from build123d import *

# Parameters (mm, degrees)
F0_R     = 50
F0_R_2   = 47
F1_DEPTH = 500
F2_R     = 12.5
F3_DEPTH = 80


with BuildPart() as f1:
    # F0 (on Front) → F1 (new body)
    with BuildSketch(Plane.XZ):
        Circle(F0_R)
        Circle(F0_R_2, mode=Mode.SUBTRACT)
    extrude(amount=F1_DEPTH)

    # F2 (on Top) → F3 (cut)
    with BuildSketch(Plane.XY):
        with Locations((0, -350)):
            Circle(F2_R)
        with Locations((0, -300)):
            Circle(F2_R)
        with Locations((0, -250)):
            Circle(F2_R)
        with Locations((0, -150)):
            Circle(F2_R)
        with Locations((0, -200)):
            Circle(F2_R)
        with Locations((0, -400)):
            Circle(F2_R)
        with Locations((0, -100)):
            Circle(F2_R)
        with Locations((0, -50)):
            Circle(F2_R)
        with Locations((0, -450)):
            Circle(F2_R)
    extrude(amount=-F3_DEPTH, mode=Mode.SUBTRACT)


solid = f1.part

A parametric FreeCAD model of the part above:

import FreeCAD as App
import Part
import Sketcher

doc = App.newDocument("Part")
body = doc.addObject("PartDesign::Body", "Body")

# Sketch on XZ plane
sketch1 = body.newObject("Sketcher::SketchObject", "Sketch")
sketch1.AttachmentSupport = (doc.getObject("XZ_Plane"), [""])
sketch1.MapMode = "FlatFace"
sketch1.addGeometry([
    Part.Circle(App.Vector(0, 0, 0), App.Vector(0, 0, 1), 50),
    Part.Circle(App.Vector(0, 0, 0), App.Vector(0, 0, 1), 47),
], False)
sketch1.addConstraint([
    Sketcher.Constraint("Coincident", 0, 3, -1, 1),
    Sketcher.Constraint("Coincident", 1, 3, -1, 1),
    Sketcher.Constraint("Diameter", 0, 100.0),
    Sketcher.Constraint("Diameter", 1, 94.0),
])
pad1 = body.newObject("PartDesign::Pad", "Pad")
pad1.Profile = sketch1
pad1.Length = 500

# Sketch on XY plane
sketch2 = body.newObject("Sketcher::SketchObject", "Sketch001")
sketch2.AttachmentSupport = (doc.getObject("XY_Plane"), [""])
sketch2.MapMode = "FlatFace"
sketch2.addGeometry([
    Part.Circle(App.Vector(0, -350, 0), App.Vector(0, 0, 1), 12.5),  # 0
    Part.Circle(App.Vector(0, -300, 0), App.Vector(0, 0, 1), 12.5),  # 1
    Part.Circle(App.Vector(0, -250, 0), App.Vector(0, 0, 1), 12.5),  # 2
    Part.Circle(App.Vector(0, -150, 0), App.Vector(0, 0, 1), 12.5),  # 3
    Part.Circle(App.Vector(0, -200, 0), App.Vector(0, 0, 1), 12.5),  # 4
    Part.Circle(App.Vector(0, -400, 0), App.Vector(0, 0, 1), 12.5),  # 5
    Part.Circle(App.Vector(0, -100, 0), App.Vector(0, 0, 1), 12.5),  # 6
    Part.Circle(App.Vector(0, -50, 0), App.Vector(0, 0, 1), 12.5),  # 7
    Part.Circle(App.Vector(0, -450, 0), App.Vector(0, 0, 1), 12.5),  # 8
], False)
sketch2.addConstraint([
    Sketcher.Constraint("Equal", 0, 1),
    Sketcher.Constraint("Equal", 1, 2),
    Sketcher.Constraint("Equal", 2, 3),
    Sketcher.Constraint("Equal", 3, 4),
    Sketcher.Constraint("Equal", 4, 5),
    Sketcher.Constraint("Equal", 5, 6),
    Sketcher.Constraint("Equal", 6, 7),
    Sketcher.Constraint("Equal", 7, 8),
    Sketcher.Constraint("PointOnObject", 0, 3, -2),
    Sketcher.Constraint("PointOnObject", 1, 3, -2),
    Sketcher.Constraint("PointOnObject", 2, 3, -2),
    Sketcher.Constraint("PointOnObject", 3, 3, -2),
    Sketcher.Constraint("PointOnObject", 4, 3, -2),
    Sketcher.Constraint("PointOnObject", 5, 3, -2),
    Sketcher.Constraint("PointOnObject", 6, 3, -2),
    Sketcher.Constraint("PointOnObject", 7, 3, -2),
    Sketcher.Constraint("PointOnObject", 8, 3, -2),
    Sketcher.Constraint("Diameter", 0, 25.0),
    Sketcher.Constraint("DistanceY", 0, 3, -1, 1, 350.0),
    Sketcher.Constraint("DistanceY", 1, 3, -1, 1, 300.0),
    Sketcher.Constraint("DistanceY", 2, 3, -1, 1, 250.0),
    Sketcher.Constraint("DistanceY", 3, 3, -1, 1, 150.0),
    Sketcher.Constraint("DistanceY", 4, 3, -1, 1, 200.0),
    Sketcher.Constraint("DistanceY", 5, 3, -1, 1, 400.0),
    Sketcher.Constraint("DistanceY", 6, 3, -1, 1, 100.0),
    Sketcher.Constraint("DistanceY", 7, 3, -1, 1, 50.0),
    Sketcher.Constraint("DistanceY", 8, 3, -1, 1, 450.0),
])
pocket1 = body.newObject("PartDesign::Pocket", "Pocket")
pocket1.Profile = sketch2
pocket1.Length = 80

doc.recompute()
